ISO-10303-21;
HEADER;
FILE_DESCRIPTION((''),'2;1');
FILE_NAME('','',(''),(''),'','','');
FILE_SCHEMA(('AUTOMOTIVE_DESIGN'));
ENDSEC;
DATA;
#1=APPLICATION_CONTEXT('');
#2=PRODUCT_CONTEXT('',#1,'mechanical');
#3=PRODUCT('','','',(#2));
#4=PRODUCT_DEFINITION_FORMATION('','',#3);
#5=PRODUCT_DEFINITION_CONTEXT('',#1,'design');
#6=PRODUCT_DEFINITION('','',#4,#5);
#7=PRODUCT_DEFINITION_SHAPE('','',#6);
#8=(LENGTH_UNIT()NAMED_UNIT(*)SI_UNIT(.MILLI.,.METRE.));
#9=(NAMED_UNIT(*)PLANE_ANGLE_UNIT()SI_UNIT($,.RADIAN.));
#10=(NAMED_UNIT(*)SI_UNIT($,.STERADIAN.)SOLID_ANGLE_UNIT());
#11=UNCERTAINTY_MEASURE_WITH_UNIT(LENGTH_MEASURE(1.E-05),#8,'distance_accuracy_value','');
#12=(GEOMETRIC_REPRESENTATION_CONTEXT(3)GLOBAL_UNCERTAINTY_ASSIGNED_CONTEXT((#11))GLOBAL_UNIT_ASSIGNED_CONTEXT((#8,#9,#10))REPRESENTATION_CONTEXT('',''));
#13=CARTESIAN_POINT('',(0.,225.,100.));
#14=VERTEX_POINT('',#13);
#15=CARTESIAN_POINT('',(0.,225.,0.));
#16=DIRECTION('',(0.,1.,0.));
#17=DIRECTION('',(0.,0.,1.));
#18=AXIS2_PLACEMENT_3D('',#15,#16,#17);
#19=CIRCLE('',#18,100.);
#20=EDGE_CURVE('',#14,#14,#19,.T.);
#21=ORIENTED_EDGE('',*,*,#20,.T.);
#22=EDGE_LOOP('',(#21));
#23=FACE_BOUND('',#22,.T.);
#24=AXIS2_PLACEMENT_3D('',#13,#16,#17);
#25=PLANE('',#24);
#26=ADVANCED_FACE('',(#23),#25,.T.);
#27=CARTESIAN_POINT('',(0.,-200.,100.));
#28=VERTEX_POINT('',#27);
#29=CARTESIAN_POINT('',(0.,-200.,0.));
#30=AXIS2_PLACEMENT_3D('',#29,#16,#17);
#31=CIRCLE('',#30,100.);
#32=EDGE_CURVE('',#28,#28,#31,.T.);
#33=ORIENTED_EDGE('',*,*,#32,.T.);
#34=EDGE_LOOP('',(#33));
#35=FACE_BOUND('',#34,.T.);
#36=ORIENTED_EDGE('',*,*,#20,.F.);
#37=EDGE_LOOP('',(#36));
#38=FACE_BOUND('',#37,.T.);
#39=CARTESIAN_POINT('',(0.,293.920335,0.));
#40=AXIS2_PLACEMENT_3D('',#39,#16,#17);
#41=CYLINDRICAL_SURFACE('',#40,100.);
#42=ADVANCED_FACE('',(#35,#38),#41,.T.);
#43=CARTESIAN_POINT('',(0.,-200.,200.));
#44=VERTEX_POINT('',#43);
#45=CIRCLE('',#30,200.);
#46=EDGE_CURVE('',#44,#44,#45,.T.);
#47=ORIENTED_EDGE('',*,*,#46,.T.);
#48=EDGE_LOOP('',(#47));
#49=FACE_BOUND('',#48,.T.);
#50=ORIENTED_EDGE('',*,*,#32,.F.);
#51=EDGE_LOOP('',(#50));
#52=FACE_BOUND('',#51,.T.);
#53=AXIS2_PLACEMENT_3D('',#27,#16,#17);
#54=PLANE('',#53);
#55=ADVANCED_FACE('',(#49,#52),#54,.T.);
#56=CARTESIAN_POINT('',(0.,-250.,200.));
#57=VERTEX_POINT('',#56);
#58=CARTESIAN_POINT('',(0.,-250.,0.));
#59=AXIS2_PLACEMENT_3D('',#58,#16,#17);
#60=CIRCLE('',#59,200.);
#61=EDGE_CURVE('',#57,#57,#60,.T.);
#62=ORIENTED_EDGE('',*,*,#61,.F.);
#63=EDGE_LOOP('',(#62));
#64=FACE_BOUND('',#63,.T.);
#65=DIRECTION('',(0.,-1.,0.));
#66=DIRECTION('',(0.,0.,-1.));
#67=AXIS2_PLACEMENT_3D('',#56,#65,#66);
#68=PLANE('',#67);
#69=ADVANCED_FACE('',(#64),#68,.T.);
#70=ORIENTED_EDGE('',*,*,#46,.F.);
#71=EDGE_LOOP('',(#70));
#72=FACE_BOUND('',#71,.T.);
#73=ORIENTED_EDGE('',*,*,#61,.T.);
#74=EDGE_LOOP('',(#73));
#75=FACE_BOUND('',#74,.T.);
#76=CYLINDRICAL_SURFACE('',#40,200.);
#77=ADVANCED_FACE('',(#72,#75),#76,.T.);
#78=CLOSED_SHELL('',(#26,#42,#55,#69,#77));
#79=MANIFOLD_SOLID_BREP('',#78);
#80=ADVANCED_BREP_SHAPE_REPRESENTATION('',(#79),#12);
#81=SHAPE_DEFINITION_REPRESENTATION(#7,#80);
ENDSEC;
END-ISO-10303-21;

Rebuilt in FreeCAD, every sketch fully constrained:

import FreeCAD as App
import Part
import Sketcher


def add_polygon(sketch, points):
    """Adds a closed chain of lines whose ends are joined by coincident constraints."""
    first, n = sketch.GeometryCount, len(points)
    for a, b in zip(points, points[1:] + points[:1]):
        sketch.addGeometry(Part.LineSegment(App.Vector(*a, 0), App.Vector(*b, 0)), False)
    for i in range(n):
        sketch.addConstraint(Sketcher.Constraint("Coincident", first + i, 2, first + (i + 1) % n, 1))

doc = App.newDocument("Part")
body = doc.addObject("PartDesign::Body", "Body")

# Sketch on YZ plane
sketch1 = doc.addObject("Sketcher::SketchObject", "Sketch")
body.addObject(sketch1)
sketch1.AttachmentSupport = (doc.YZ_Plane, [""])
sketch1.MapMode = "FlatFace"
add_polygon(sketch1, [(225, 0), (225, 100), (-200, 100), (-200, 200), (-250, 200), (-250, 0)])  # lines 0-5
sketch1.addConstraint(Sketcher.Constraint("Vertical", 0))
sketch1.addConstraint(Sketcher.Constraint("Horizontal", 1))
sketch1.addConstraint(Sketcher.Constraint("Vertical", 2))
sketch1.addConstraint(Sketcher.Constraint("Horizontal", 3))
sketch1.addConstraint(Sketcher.Constraint("Vertical", 4))
sketch1.addConstraint(Sketcher.Constraint("Horizontal", 5))
sketch1.addConstraint(Sketcher.Constraint("PointOnObject", 4, 2, -1))
sketch1.addConstraint(Sketcher.Constraint("Equal", 0, 2))
sketch1.addConstraint(Sketcher.Constraint("DistanceX", 1, 2, 1, 1, 425.0))
sketch1.addConstraint(Sketcher.Constraint("DistanceX", 3, 2, 3, 1, 50.0))
sketch1.addConstraint(Sketcher.Constraint("DistanceY", 0, 1, 0, 2, 100.0))
sketch1.addConstraint(Sketcher.Constraint("DistanceX", -1, 1, 0, 2, 225.0))
revolution = doc.addObject("PartDesign::Revolution", "Revolution")
body.addObject(revolution)
revolution.Profile = sketch1
revolution.ReferenceAxis = (sketch1, ["H_Axis"])
revolution.Angle = 360

doc.recompute()
